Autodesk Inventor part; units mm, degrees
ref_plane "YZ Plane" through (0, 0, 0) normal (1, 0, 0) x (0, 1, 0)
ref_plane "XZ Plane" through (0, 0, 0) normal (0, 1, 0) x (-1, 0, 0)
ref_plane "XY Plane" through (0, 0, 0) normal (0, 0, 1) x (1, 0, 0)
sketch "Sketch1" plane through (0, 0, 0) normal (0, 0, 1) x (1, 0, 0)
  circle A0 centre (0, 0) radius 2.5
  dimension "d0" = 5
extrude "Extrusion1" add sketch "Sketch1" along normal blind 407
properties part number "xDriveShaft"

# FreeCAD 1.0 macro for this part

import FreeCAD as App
import Part
import Sketcher
from FreeCAD import Vector
Q = App.Units.Quantity

doc = App.newDocument("Part")
body = doc.addObject("PartDesign::Body", "Body")

# Sketch on XY plane
sketch1 = body.newObject("Sketcher::SketchObject", "Sketch")
sketch1.AttachmentSupport = (doc.getObject("XY_Plane"), [""])
sketch1.MapMode = "FlatFace"
sketch1.addGeometry(Part.Circle(Vector(0, 0, 0), Vector(0, 0, 1), 2.5), False)
sketch1.addConstraint([
    Sketcher.Constraint("Coincident", 0, 3, -1, 1),
    Sketcher.Constraint("Diameter", 0, Q("5 mm")),
])
pad1 = body.newObject("PartDesign::Pad", "Pad")
pad1.Profile = sketch1
pad1.Length = 407

doc.recompute()
